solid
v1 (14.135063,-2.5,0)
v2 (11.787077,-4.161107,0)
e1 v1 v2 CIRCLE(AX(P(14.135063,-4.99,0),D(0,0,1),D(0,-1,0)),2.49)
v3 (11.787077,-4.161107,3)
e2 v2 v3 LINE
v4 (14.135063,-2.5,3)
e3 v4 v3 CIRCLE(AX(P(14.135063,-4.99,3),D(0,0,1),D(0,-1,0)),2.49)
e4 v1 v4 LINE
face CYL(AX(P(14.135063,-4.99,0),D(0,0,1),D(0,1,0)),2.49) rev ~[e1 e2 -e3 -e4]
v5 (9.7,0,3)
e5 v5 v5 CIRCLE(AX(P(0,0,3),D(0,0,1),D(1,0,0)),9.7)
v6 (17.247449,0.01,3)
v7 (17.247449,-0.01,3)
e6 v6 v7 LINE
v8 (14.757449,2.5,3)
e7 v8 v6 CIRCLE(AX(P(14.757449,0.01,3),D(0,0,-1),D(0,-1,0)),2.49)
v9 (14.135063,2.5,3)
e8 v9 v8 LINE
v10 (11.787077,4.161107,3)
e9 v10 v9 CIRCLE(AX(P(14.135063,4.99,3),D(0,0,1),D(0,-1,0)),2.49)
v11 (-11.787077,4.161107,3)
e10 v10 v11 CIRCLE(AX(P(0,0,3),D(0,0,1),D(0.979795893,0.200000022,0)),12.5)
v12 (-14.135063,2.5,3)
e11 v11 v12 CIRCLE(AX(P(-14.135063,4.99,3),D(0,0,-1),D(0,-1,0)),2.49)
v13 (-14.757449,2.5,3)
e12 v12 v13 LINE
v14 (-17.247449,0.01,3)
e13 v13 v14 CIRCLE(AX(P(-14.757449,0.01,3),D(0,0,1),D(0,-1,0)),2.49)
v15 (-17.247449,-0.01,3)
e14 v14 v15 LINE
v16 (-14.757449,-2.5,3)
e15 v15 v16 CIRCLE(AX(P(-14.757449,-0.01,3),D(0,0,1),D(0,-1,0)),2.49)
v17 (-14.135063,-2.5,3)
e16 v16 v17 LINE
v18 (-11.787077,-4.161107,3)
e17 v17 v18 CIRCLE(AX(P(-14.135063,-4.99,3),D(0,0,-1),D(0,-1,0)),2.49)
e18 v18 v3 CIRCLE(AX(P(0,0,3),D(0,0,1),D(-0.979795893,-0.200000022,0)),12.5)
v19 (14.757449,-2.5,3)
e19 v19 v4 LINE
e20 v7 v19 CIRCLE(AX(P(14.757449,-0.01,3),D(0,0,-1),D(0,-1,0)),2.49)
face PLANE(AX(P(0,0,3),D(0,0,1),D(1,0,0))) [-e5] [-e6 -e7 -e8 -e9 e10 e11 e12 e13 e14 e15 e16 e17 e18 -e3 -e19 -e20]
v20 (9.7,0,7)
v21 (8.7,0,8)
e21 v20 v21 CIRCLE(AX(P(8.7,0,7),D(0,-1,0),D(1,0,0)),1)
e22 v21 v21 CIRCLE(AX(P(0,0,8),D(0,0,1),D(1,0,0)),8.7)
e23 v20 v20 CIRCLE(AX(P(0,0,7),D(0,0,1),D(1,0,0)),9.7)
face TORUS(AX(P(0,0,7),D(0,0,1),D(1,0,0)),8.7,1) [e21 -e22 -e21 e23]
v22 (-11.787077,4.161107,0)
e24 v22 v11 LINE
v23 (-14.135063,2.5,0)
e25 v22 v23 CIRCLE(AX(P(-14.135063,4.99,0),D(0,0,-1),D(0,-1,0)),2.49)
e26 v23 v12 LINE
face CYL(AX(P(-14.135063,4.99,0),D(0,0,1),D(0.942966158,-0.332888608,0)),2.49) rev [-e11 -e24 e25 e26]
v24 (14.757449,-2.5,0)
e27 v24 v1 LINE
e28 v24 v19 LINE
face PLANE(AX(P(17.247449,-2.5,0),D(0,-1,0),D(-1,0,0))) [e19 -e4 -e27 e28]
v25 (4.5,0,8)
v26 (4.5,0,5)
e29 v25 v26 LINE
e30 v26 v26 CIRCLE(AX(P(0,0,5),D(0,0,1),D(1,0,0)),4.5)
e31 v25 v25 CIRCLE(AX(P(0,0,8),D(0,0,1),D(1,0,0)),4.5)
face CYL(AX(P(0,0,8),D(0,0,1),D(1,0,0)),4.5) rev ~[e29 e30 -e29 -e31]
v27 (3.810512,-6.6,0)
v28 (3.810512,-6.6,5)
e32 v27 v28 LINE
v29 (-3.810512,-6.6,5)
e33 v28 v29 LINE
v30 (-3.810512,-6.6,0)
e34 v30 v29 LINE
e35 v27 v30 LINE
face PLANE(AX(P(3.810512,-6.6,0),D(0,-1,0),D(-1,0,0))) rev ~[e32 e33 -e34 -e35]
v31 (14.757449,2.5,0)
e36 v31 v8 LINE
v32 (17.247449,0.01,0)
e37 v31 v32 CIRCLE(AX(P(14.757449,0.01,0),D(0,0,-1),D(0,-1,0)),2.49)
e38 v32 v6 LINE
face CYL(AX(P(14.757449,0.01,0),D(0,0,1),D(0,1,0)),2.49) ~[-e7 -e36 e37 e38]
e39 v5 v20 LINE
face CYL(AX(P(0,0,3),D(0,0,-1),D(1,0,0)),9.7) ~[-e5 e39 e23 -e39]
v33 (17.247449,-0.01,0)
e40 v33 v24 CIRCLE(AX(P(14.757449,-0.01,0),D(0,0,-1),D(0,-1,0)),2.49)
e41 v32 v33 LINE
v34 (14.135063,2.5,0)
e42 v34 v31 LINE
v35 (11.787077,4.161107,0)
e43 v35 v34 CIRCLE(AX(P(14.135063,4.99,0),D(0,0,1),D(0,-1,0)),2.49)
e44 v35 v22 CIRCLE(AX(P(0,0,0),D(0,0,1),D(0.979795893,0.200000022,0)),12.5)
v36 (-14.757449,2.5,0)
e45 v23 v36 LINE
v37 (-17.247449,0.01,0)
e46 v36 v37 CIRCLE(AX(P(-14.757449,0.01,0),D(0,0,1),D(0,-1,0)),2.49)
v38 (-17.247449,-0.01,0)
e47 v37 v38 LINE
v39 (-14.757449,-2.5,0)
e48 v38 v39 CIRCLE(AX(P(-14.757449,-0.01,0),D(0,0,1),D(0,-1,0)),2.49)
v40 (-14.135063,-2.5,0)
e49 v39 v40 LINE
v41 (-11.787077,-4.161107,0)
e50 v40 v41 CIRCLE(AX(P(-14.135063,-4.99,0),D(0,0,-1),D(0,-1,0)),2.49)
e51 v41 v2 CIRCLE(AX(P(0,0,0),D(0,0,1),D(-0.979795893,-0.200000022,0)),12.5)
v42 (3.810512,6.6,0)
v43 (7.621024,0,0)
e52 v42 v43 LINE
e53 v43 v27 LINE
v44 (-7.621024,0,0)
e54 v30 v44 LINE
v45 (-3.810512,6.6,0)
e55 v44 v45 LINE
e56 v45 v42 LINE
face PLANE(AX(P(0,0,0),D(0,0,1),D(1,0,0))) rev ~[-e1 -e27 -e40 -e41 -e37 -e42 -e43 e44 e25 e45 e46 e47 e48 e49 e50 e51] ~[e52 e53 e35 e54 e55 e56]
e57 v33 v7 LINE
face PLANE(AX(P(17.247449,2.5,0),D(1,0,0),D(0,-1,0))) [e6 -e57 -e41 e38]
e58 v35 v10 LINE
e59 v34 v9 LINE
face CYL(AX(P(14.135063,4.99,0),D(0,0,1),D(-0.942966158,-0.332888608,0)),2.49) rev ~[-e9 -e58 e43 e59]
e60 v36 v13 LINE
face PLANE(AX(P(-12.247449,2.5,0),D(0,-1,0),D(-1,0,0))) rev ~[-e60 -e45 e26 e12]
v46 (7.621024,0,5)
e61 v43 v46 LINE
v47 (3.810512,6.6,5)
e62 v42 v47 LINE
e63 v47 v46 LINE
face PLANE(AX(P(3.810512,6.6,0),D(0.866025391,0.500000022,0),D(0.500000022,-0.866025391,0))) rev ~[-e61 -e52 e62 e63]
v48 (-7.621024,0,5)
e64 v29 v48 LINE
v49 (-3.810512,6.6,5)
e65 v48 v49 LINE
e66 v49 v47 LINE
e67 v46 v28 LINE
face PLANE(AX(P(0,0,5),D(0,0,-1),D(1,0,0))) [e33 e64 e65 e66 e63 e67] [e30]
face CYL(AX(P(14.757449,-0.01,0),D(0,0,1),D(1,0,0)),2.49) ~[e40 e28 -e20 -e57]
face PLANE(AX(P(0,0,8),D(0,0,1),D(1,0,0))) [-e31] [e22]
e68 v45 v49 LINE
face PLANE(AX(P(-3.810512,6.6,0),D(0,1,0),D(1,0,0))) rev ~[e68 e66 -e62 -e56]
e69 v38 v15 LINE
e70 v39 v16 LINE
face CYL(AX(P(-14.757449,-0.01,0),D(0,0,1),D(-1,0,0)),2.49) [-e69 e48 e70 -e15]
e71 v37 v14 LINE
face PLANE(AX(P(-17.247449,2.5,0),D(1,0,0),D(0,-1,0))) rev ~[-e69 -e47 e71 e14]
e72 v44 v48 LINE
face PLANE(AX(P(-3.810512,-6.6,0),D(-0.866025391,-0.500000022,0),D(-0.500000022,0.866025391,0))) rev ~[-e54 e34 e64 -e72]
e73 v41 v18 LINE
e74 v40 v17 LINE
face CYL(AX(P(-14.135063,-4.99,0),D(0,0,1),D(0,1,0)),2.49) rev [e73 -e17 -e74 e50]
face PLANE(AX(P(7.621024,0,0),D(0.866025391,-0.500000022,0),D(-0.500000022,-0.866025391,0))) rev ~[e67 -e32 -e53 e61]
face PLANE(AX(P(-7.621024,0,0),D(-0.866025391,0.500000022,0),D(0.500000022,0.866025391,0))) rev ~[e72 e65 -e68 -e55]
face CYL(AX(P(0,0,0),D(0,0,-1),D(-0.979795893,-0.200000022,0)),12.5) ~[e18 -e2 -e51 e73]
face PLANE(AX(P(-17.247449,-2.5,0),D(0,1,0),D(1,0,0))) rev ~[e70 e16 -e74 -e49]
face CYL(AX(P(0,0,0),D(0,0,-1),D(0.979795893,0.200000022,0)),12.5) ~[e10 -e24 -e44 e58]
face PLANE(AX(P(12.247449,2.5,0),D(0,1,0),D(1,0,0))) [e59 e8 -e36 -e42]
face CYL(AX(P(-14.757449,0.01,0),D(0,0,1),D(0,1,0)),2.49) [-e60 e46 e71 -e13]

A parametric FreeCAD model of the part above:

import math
import FreeCAD as App
import Part
import Sketcher
Q = App.Units.Quantity


def edges_at(feature, points):
    """Names of the edges that pass closest to the given points."""
    edges = feature.Shape.Edges
    near = lambda p: min(range(len(edges)), key=lambda i: edges[i].distToShape(Part.Vertex(*p))[0])
    return sorted({f"Edge{near(p) + 1}" for p in points})


def add_polygon(sketch, points):
    """Adds a closed chain of lines whose ends are joined by coincident constraints."""
    first, n = sketch.GeometryCount, len(points)
    for a, b in zip(points, points[1:] + points[:1]):
        sketch.addGeometry(Part.LineSegment(App.Vector(*a, 0), App.Vector(*b, 0)), False)
    for i in range(n):
        sketch.addConstraint(Sketcher.Constraint("Coincident", first + i, 2, first + (i + 1) % n, 1))

doc = App.newDocument("Part")
body = doc.addObject("PartDesign::Body", "Body")

sketch1 = doc.addObject("Sketcher::SketchObject", "Sketch")
body.addObject(sketch1)
sketch1.AttachmentSupport = (doc.XY_Plane, [""])
sketch1.MapMode = "FlatFace"
sketch1.addGeometry([
    Part.ArcOfCircle(Part.Circle(App.Vector(0, 0, 0), App.Vector(0, 0, 1), 13), math.radians(12), math.radians(168)),
    Part.LineSegment(App.Vector(-12, 2, 0), App.Vector(-17, 2, 0)),
    Part.LineSegment(App.Vector(-17, 2, 0), App.Vector(-17, -2, 0)),
    Part.LineSegment(App.Vector(-17, -2, 0), App.Vector(-12, -2, 0)),
    Part.ArcOfCircle(Part.Circle(App.Vector(0, 0, 0), App.Vector(0, 0, 1), 13), math.radians(-168), math.radians(-12)),
    Part.LineSegment(App.Vector(12, -2, 0), App.Vector(17, -2, 0)),
    Part.LineSegment(App.Vector(17, -2, 0), App.Vector(17, 2, 0)),
    Part.LineSegment(App.Vector(17, 2, 0), App.Vector(12, 2, 0)),
], False)
sketch1.addConstraint([
    Sketcher.Constraint("Coincident", 0, 2, 1, 1),
    Sketcher.Constraint("Coincident", 1, 2, 2, 1),
    Sketcher.Constraint("Coincident", 2, 2, 3, 1),
    Sketcher.Constraint("Coincident", 3, 2, 4, 1),
    Sketcher.Constraint("Coincident", 4, 2, 5, 1),
    Sketcher.Constraint("Coincident", 5, 2, 6, 1),
    Sketcher.Constraint("Coincident", 6, 2, 7, 1),
    Sketcher.Constraint("Coincident", 7, 2, 0, 1),
    Sketcher.Constraint("Horizontal", 1),
    Sketcher.Constraint("Vertical", 2),
    Sketcher.Constraint("Horizontal", 3),
    Sketcher.Constraint("Horizontal", 5),
    Sketcher.Constraint("Vertical", 6),
    Sketcher.Constraint("Horizontal", 7),
    Sketcher.Constraint("Coincident", 0, 3, -1, 1),
    Sketcher.Constraint("Coincident", 4, 3, -1, 1),
    Sketcher.Constraint("Equal", 0, 4),
    Sketcher.Constraint("Symmetric", 1, 2, 5, 2, -1, 1),
    Sketcher.Constraint("Horizontal", 3, 2, 4, 2),
    Sketcher.Constraint("Horizontal", 1, 2, 6, 2),
    Sketcher.Constraint("Equal", 7, 2),
    Sketcher.Constraint("Radius", 0, 12.5),
    Sketcher.Constraint("DistanceX", 1, 2, 1, 1, 5.0),
])
pad1 = doc.addObject("PartDesign::Pad", "Pad")
body.addObject(pad1)
pad1.Profile = sketch1
pad1.Length = 3

sketch2 = doc.addObject("Sketcher::SketchObject", "Sketch001")
body.addObject(sketch2)
sketch2.AttachmentSupport = (doc.XY_Plane, [""])
sketch2.MapMode = "FlatFace"
sketch2.AttachmentOffset = App.Placement(App.Vector(0, 0, 3), App.Rotation())
sketch2.addGeometry(Part.Circle(App.Vector(0, 0, 0), App.Vector(0, 0, 1), 10), False)
sketch2.addConstraint([
    Sketcher.Constraint("Coincident", 0, 3, -1, 1),
    Sketcher.Constraint("Diameter", 0, 19.4),
])
pad2 = doc.addObject("PartDesign::Pad", "Pad001")
body.addObject(pad2)
pad2.Profile = sketch2
pad2.Length = 5

sketch3 = doc.addObject("Sketcher::SketchObject", "Sketch002")
body.addObject(sketch3)
sketch3.AttachmentSupport = (doc.XY_Plane, [""])
sketch3.MapMode = "FlatFace"
sketch3.AttachmentOffset = App.Placement(App.Vector(0, 0, 8), App.Rotation())
sketch3.addGeometry(Part.Circle(App.Vector(0, 0, 0), App.Vector(0, 0, 1), 4.5), False)
sketch3.addConstraint([
    Sketcher.Constraint("Coincident", 0, 3, -1, 1),
    Sketcher.Constraint("Diameter", 0, 9.0),
])
pocket1 = doc.addObject("PartDesign::Pocket", "Pocket")
body.addObject(pocket1)
pocket1.Profile = sketch3
pocket1.Type = "ThroughAll"

sketch4 = doc.addObject("Sketcher::SketchObject", "Sketch003")
body.addObject(sketch4)
sketch4.AttachmentSupport = (doc.XY_Plane, [""])
sketch4.MapMode = "FlatFace"
add_polygon(sketch4, [(4, 7), (8, 0), (4, -7), (-4, -7), (-8, 0), (-4, 7)])
sketch4.addConstraint([
    Sketcher.Constraint("Horizontal", 2),
    Sketcher.Constraint("Horizontal", 5),
    Sketcher.Constraint("Symmetric", 0, 2, 3, 2, -1, 1),
    Sketcher.Constraint("Symmetric", 1, 2, 4, 2, -1, 1),
    Sketcher.Constraint("PointOnObject", 0, 2, -1),
    Sketcher.Constraint("Parallel", 0, 3),
    Sketcher.Constraint("Vertical", 2, 2, 4, 2),
    Sketcher.Constraint("Angle", 0, Q("-59.999999 deg")),
    Sketcher.Constraint("DistanceY", 1, 2, -1, 1, 6.6),
    Sketcher.Constraint("DistanceX", 2, 2, 2, 1, 7.621024),
])
pocket2 = doc.addObject("PartDesign::Pocket", "Pocket001")
body.addObject(pocket2)
pocket2.Profile = sketch4
pocket2.Length = 5
pocket2.Reversed = True
doc.recompute()

fillet = doc.addObject("PartDesign::Fillet", "Fillet")
body.addObject(fillet)
fillet.Base = (pocket2, edges_at(pocket2, [(-9.7, 0, 8)]))
fillet.Radius = 1
doc.recompute()

fillet2 = doc.addObject("PartDesign::Fillet", "Fillet001")
body.addObject(fillet2)
fillet2.Base = (fillet, edges_at(fillet, [
    (12.247, 2.5, 1.5),
    (17.247, 2.5, 1.5),
    (17.247, -2.5, 1.5),
    (12.247, -2.5, 1.5),
    (-12.247, -2.5, 1.5),
    (-17.247, -2.5, 1.5),
    (-17.247, 2.5, 1.5),
    (-12.247, 2.5, 1.5),
]))
fillet2.Radius = 2.49

doc.recompute()
